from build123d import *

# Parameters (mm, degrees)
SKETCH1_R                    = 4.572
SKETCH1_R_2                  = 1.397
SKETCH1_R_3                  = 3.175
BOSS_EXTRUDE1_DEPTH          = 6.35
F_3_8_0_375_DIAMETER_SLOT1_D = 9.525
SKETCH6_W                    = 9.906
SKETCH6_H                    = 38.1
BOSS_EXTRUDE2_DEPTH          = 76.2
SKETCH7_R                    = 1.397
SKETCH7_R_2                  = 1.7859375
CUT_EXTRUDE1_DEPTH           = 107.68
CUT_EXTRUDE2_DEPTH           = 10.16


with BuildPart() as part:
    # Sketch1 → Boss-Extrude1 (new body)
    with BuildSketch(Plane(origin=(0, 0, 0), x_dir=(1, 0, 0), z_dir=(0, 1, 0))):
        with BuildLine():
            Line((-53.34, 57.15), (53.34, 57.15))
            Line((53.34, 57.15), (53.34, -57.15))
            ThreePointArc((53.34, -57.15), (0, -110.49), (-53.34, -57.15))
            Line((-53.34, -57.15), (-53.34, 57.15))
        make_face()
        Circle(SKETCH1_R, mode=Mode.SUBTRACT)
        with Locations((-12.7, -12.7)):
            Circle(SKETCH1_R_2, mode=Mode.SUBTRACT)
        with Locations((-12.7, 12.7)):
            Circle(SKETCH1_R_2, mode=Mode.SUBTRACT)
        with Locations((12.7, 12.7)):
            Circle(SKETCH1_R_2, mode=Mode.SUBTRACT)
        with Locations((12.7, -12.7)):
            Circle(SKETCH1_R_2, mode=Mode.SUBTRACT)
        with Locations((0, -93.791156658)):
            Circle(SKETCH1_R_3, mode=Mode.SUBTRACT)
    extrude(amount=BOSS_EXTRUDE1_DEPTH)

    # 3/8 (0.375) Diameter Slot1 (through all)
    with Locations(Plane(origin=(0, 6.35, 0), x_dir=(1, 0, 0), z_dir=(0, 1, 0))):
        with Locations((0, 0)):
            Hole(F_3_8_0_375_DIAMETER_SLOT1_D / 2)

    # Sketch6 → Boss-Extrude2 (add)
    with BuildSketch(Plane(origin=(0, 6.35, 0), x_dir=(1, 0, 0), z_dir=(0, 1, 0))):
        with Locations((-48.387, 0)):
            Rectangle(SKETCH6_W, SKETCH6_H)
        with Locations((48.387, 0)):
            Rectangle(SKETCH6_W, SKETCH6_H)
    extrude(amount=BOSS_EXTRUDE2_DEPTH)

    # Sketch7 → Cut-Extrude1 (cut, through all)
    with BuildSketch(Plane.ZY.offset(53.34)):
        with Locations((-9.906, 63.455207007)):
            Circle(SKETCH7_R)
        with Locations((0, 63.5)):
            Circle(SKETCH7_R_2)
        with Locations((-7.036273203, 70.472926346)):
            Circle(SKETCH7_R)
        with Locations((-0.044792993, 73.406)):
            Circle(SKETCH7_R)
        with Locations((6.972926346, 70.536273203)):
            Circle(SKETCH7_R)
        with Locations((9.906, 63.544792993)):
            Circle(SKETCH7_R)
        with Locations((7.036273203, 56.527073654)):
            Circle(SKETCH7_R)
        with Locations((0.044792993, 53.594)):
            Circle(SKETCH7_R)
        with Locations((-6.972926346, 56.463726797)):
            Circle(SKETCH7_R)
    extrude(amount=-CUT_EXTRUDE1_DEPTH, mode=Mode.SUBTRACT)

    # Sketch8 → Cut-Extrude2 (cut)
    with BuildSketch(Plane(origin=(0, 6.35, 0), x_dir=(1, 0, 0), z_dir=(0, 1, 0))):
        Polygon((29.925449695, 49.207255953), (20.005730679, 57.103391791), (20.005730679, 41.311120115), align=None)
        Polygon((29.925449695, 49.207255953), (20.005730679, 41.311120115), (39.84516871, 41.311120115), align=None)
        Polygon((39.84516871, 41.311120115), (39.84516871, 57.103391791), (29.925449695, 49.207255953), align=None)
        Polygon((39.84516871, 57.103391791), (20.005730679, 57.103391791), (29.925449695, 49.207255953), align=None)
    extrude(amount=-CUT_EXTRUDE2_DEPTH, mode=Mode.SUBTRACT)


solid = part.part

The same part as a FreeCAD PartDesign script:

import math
import FreeCAD as App
import Part
import Sketcher
from FreeCAD import Vector
Q = App.Units.Quantity

doc = App.newDocument("Part")
body = doc.addObject("PartDesign::Body", "Body")

# Sketch on XZ plane
sketch1 = body.newObject("Sketcher::SketchObject", "Sketch")
sketch1.AttachmentSupport = (doc.getObject("XZ_Plane"), [""])
sketch1.MapMode = "FlatFace"
sketch1.addGeometry(Part.LineSegment(Vector(53.34, -57.15, 0), Vector(-53.34, -57.15, 0)), False)
sketch1.addGeometry(Part.LineSegment(Vector(-53.34, -57.15, 0), Vector(-53.34, 57.15, 0)), False)
sketch1.addGeometry(Part.ArcOfCircle(Part.Circle(Vector(0, 57.15, 0), Vector(0, 0, 1), 53.34), math.radians(0), math.radians(180)), False)
sketch1.addGeometry(Part.LineSegment(Vector(53.34, 57.15, 0), Vector(53.34, -57.15, 0)), False)
sketch1.addGeometry(Part.Circle(Vector(0, 93.791157, 0), Vector(0, 0, 1), 3.175), False)
sketch1.addGeometry(Part.Circle(Vector(12.7, 12.7, 0), Vector(0, 0, 1), 1.397), False)
sketch1.addGeometry(Part.Circle(Vector(12.7, -12.7, 0), Vector(0, 0, 1), 1.397), False)
sketch1.addGeometry(Part.Circle(Vector(0, 0, 0), Vector(0, 0, 1), 4.572), False)
sketch1.addGeometry(Part.Circle(Vector(-12.7, 12.7, 0), Vector(0, 0, 1), 1.397), False)
sketch1.addGeometry(Part.Circle(Vector(-12.7, -12.7, 0), Vector(0, 0, 1), 1.397), False)
sketch1.addConstraint(Sketcher.Constraint("Coincident", 0, 2, 1, 1))
sketch1.addConstraint(Sketcher.Constraint("Tangent", 1, 2, 2, 2))
sketch1.addConstraint(Sketcher.Constraint("Tangent", 2, 1, 3, 1))
sketch1.addConstraint(Sketcher.Constraint("Coincident", 3, 2, 0, 1))
sketch1.addConstraint(Sketcher.Constraint("Horizontal", 0))
sketch1.addConstraint(Sketcher.Constraint("Vertical", 1))
sketch1.addConstraint(Sketcher.Constraint("Vertical", 3))
sketch1.addConstraint(Sketcher.Constraint("Coincident", 7, 3, -1, 1))
sketch1.addConstraint(Sketcher.Constraint("Equal", 5, 6))
sketch1.addConstraint(Sketcher.Constraint("Equal", 6, 8))
sketch1.addConstraint(Sketcher.Constraint("Equal", 8, 9))
sketch1.addConstraint(Sketcher.Constraint("Symmetric", 6, 3, 8, 3, -1, 1))
sketch1.addConstraint(Sketcher.Constraint("Symmetric", 5, 3, 9, 3, -1, 1))
sketch1.addConstraint(Sketcher.Constraint("Symmetric", 0, 2, 2, 1, -1, 1))
sketch1.addConstraint(Sketcher.Constraint("Symmetric", 5, 3, 8, 3, -2))
sketch1.addConstraint(Sketcher.Constraint("PointOnObject", 4, 3, -2))
sketch1.addConstraint(Sketcher.Constraint("Radius", 2, Q("2.1 in")))
sketch1.addConstraint(Sketcher.Constraint("Diameter", 4, Q("0.25 in")))
sketch1.addConstraint(Sketcher.Constraint("Diameter", 5, Q("0.11 in")))
sketch1.addConstraint(Sketcher.Constraint("Diameter", 7, Q("0.36 in")))
sketch1.addConstraint(Sketcher.Constraint("DistanceY", 1, 1, 1, 2, Q("4.5 in")))
sketch1.addConstraint(Sketcher.Constraint("DistanceY", 6, 3, 5, 3, Q("1 in")))
sketch1.addConstraint(Sketcher.Constraint("DistanceX", 8, 3, 5, 3, Q("1 in")))
sketch1.addConstraint(Sketcher.Constraint("DistanceY", -1, 1, 4, 3, 93.791157))
pad1 = body.newObject("PartDesign::Pad", "Pad")
pad1.Profile = sketch1
pad1.Length = Q("0.25 in")
pad1.Reversed = True

# Sketch on XZ plane
sketch2 = body.newObject("Sketcher::SketchObject", "Sketch001")
sketch2.AttachmentSupport = (doc.getObject("XZ_Plane"), [""])
sketch2.MapMode = "FlatFace"
sketch2.AttachmentOffset = App.Placement(Vector(0, 0, -0.25 * 25.4), App.Rotation())
sketch2.addGeometry(Part.Circle(Vector(0, 0, 0), Vector(0, 0, 1), 4.7625), False)
sketch2.addConstraint(Sketcher.Constraint("Coincident", 0, 3, -1, 1))
sketch2.addConstraint(Sketcher.Constraint("Diameter", 0, Q("0.375 in")))
doc.recompute()
hole = body.newObject("PartDesign::Hole", "Hole")
hole.Profile = sketch2
hole.ThreadType = "None"
hole.Diameter = Q("0.375 in")
hole.DepthType = "ThroughAll"
hole.Reversed = True

# Sketch on XZ plane
sketch3 = body.newObject("Sketcher::SketchObject", "Sketch002")
sketch3.AttachmentSupport = (doc.getObject("XZ_Plane"), [""])
sketch3.MapMode = "FlatFace"
sketch3.AttachmentOffset = App.Placement(Vector(0, 0, -0.25 * 25.4), App.Rotation())
sketch3.addGeometry(Part.LineSegment(Vector(-53.34, -19.05, 0), Vector(-53.34, 19.05, 0)), False)
sketch3.addGeometry(Part.LineSegment(Vector(-53.34, 19.05, 0), Vector(-43.434, 19.05, 0)), False)
sketch3.addGeometry(Part.LineSegment(Vector(-43.434, 19.05, 0), Vector(-43.434, -19.05, 0)), False)
sketch3.addGeometry(Part.LineSegment(Vector(-43.434, -19.05, 0), Vector(-53.34, -19.05, 0)), False)
sketch3.addGeometry(Part.LineSegment(Vector(43.434, -19.05, 0), Vector(43.434, 19.05, 0)), False)
sketch3.addGeometry(Part.LineSegment(Vector(43.434, 19.05, 0), Vector(53.34, 19.05, 0)), False)
sketch3.addGeometry(Part.LineSegment(Vector(53.34, 19.05, 0), Vector(53.34, -19.05, 0)), False)
sketch3.addGeometry(Part.LineSegment(Vector(53.34, -19.05, 0), Vector(43.434, -19.05, 0)), False)
sketch3.addConstraint(Sketcher.Constraint("Coincident", 0, 2, 1, 1))
sketch3.addConstraint(Sketcher.Constraint("Coincident", 1, 2, 2, 1))
sketch3.addConstraint(Sketcher.Constraint("Coincident", 2, 2, 3, 1))
sketch3.addConstraint(Sketcher.Constraint("Coincident", 3, 2, 0, 1))
sketch3.addConstraint(Sketcher.Constraint("Coincident", 4, 2, 5, 1))
sketch3.addConstraint(Sketcher.Constraint("Coincident", 5, 2, 6, 1))
sketch3.addConstraint(Sketcher.Constraint("Coincident", 6, 2, 7, 1))
sketch3.addConstraint(Sketcher.Constraint("Coincident", 7, 2, 4, 1))
sketch3.addConstraint(Sketcher.Constraint("Vertical", 0))
sketch3.addConstraint(Sketcher.Constraint("Horizontal", 1))
sketch3.addConstraint(Sketcher.Constraint("Vertical", 2))
sketch3.addConstraint(Sketcher.Constraint("Horizontal", 3))
sketch3.addConstraint(Sketcher.Constraint("Vertical", 4))
sketch3.addConstraint(Sketcher.Constraint("Horizontal", 5))
sketch3.addConstraint(Sketcher.Constraint("Vertical", 6))
sketch3.addConstraint(Sketcher.Constraint("Horizontal", 7))
sketch3.addConstraint(Sketcher.Constraint("Symmetric", 2, 2, 4, 2, -1, 1))
sketch3.addConstraint(Sketcher.Constraint("Symmetric", 0, 2, 6, 2, -1, 1))
sketch3.addConstraint(Sketcher.Constraint("Horizontal", 1, 2, 4, 2))
sketch3.addConstraint(Sketcher.Constraint("DistanceY", 0, 1, 0, 2, Q("1.5 in")))
sketch3.addConstraint(Sketcher.Constraint("DistanceX", 1, 1, 1, 2, Q("0.39 in")))
sketch3.addConstraint(Sketcher.Constraint("DistanceX", 0, 2, -1, 1, Q("2.1 in")))
pad2 = body.newObject("PartDesign::Pad", "Pad001")
pad2.Profile = sketch3
pad2.Length = Q("3 in")
pad2.Reversed = True

# Sketch on YZ plane
sketch4 = body.newObject("Sketcher::SketchObject", "Sketch003")
sketch4.AttachmentSupport = (doc.getObject("YZ_Plane"), [""])
sketch4.MapMode = "FlatFace"
sketch4.AttachmentOffset = App.Placement(Vector(0, 0, -2.1 * 25.4), App.Rotation())
sketch4.addGeometry(Part.Circle(Vector(63.455207, -9.906, 0), Vector(0, 0, 1), 1.397), False)
sketch4.addGeometry(Part.Circle(Vector(63.5, 0, 0), Vector(0, 0, 1), 1.785937), False)
sketch4.addGeometry(Part.Circle(Vector(70.472926, -7.036273, 0), Vector(0, 0, 1), 1.397), False)
sketch4.addGeometry(Part.Circle(Vector(73.406, -0.044793, 0), Vector(0, 0, 1), 1.397), False)
sketch4.addGeometry(Part.Circle(Vector(70.536273, 6.972926, 0), Vector(0, 0, 1), 1.397), False)
sketch4.addGeometry(Part.Circle(Vector(63.544793, 9.906, 0), Vector(0, 0, 1), 1.397), False)
sketch4.addGeometry(Part.Circle(Vector(56.527074, 7.036273, 0), Vector(0, 0, 1), 1.397), False)
sketch4.addGeometry(Part.Circle(Vector(53.594, 0.044793, 0), Vector(0, 0, 1), 1.397), False)
sketch4.addGeometry(Part.Circle(Vector(56.463727, -6.972926, 0), Vector(0, 0, 1), 1.397), False)
sketch4.addConstraint(Sketcher.Constraint("Equal", 0, 2))
sketch4.addConstraint(Sketcher.Constraint("Equal", 2, 3))
sketch4.addConstraint(Sketcher.Constraint("Equal", 3, 4))
sketch4.addConstraint(Sketcher.Constraint("Equal", 4, 5))
sketch4.addConstraint(Sketcher.Constraint("Equal", 5, 6))
sketch4.addConstraint(Sketcher.Constraint("Equal", 6, 7))
sketch4.addConstraint(Sketcher.Constraint("Equal", 7, 8))
sketch4.addConstraint(Sketcher.Constraint("PointOnObject", 1, 3, -1))
sketch4.addConstraint(Sketcher.Constraint("Diameter", 0, Q("0.11 in")))
sketch4.addConstraint(Sketcher.Constraint("Diameter", 1, Q("0.140625 in")))
sketch4.addConstraint(Sketcher.Constraint("DistanceX", -1, 1, 1, 3, Q("2.5 in")))
sketch4.addConstraint(Sketcher.Constraint("DistanceY", 0, 3, -1, 1, Q("0.39 in")))
sketch4.addConstraint(Sketcher.Constraint("DistanceX", -1, 1, 3, 3, Q("2.89 in")))
sketch4.addConstraint(Sketcher.Constraint("DistanceY", -1, 1, 5, 3, Q("0.39 in")))
sketch4.addConstraint(Sketcher.Constraint("DistanceX", -1, 1, 7, 3, Q("2.11 in")))
sketch4.addConstraint(Sketcher.Constraint("DistanceY", 2, 3, 4, 3, 14.0092))
sketch4.addConstraint(Sketcher.Constraint("DistanceX", 6, 3, 4, 3, 14.0092))
sketch4.addConstraint(Sketcher.Constraint("DistanceX", 8, 3, 2, 3, 14.0092))
sketch4.addConstraint(Sketcher.Constraint("DistanceY", 8, 3, 6, 3, 14.0092))
sketch4.addConstraint(Sketcher.Constraint("DistanceX", 0, 3, 2, 3, 7.017719))
sketch4.addConstraint(Sketcher.Constraint("DistanceY", 2, 3, 3, 3, 6.99148))
sketch4.addConstraint(Sketcher.Constraint("DistanceX", 5, 3, 4, 3, 6.99148))
sketch4.addConstraint(Sketcher.Constraint("DistanceY", 7, 3, 6, 3, 6.99148))
sketch4.addConstraint(Sketcher.Constraint("DistanceX", -1, 1, 0, 3, 63.455207))
sketch4.addConstraint(Sketcher.Constraint("DistanceY", 2, 3, -1, 1, 7.036273))
sketch4.addConstraint(Sketcher.Constraint("DistanceX", -1, 1, 4, 3, 70.536273))
sketch4.addConstraint(Sketcher.Constraint("DistanceY", -1, 1, 6, 3, 7.036273))
pocket1 = body.newObject("PartDesign::Pocket", "Pocket")
pocket1.Profile = sketch4
pocket1.Type = "ThroughAll"
pocket1.Reversed = True

# Sketch on XZ plane
sketch5 = body.newObject("Sketcher::SketchObject", "Sketch004")
sketch5.AttachmentSupport = (doc.getObject("XZ_Plane"), [""])
sketch5.MapMode = "FlatFace"
sketch5.AttachmentOffset = App.Placement(Vector(0, 0, -0.25 * 25.4), App.Rotation())
sketch5.addGeometry(Part.LineSegment(Vector(20.005731, -57.103392, 0), Vector(20.005731, -41.31112, 0)), False)
sketch5.addGeometry(Part.LineSegment(Vector(20.005731, -41.31112, 0), Vector(39.845169, -41.31112, 0)), False)
sketch5.addGeometry(Part.LineSegment(Vector(39.845169, -41.31112, 0), Vector(39.845169, -57.103392, 0)), False)
sketch5.addGeometry(Part.LineSegment(Vector(39.845169, -57.103392, 0), Vector(20.005731, -57.103392, 0)), False)
sketch5.addConstraint(Sketcher.Constraint("Coincident", 0, 2, 1, 1))
sketch5.addConstraint(Sketcher.Constraint("Coincident", 1, 2, 2, 1))
sketch5.addConstraint(Sketcher.Constraint("Coincident", 2, 2, 3, 1))
sketch5.addConstraint(Sketcher.Constraint("Coincident", 3, 2, 0, 1))
sketch5.addConstraint(Sketcher.Constraint("Vertical", 0))
sketch5.addConstraint(Sketcher.Constraint("Horizontal", 1))
sketch5.addConstraint(Sketcher.Constraint("Vertical", 2))
sketch5.addConstraint(Sketcher.Constraint("Horizontal", 3))
sketch5.addConstraint(Sketcher.Constraint("DistanceX", 1, 1, 1, 2, 19.839438))
sketch5.addConstraint(Sketcher.Constraint("DistanceY", 0, 1, 0, 2, 15.792272))
sketch5.addConstraint(Sketcher.Constraint("DistanceX", -1, 1, 0, 2, 20.005731))
sketch5.addConstraint(Sketcher.Constraint("DistanceY", 0, 2, -1, 1, 41.31112))
pocket2 = body.newObject("PartDesign::Pocket", "Pocket001")
pocket2.Profile = sketch5
pocket2.Length = Q("0.4 in")
pocket2.Reversed = True

doc.recompute()
